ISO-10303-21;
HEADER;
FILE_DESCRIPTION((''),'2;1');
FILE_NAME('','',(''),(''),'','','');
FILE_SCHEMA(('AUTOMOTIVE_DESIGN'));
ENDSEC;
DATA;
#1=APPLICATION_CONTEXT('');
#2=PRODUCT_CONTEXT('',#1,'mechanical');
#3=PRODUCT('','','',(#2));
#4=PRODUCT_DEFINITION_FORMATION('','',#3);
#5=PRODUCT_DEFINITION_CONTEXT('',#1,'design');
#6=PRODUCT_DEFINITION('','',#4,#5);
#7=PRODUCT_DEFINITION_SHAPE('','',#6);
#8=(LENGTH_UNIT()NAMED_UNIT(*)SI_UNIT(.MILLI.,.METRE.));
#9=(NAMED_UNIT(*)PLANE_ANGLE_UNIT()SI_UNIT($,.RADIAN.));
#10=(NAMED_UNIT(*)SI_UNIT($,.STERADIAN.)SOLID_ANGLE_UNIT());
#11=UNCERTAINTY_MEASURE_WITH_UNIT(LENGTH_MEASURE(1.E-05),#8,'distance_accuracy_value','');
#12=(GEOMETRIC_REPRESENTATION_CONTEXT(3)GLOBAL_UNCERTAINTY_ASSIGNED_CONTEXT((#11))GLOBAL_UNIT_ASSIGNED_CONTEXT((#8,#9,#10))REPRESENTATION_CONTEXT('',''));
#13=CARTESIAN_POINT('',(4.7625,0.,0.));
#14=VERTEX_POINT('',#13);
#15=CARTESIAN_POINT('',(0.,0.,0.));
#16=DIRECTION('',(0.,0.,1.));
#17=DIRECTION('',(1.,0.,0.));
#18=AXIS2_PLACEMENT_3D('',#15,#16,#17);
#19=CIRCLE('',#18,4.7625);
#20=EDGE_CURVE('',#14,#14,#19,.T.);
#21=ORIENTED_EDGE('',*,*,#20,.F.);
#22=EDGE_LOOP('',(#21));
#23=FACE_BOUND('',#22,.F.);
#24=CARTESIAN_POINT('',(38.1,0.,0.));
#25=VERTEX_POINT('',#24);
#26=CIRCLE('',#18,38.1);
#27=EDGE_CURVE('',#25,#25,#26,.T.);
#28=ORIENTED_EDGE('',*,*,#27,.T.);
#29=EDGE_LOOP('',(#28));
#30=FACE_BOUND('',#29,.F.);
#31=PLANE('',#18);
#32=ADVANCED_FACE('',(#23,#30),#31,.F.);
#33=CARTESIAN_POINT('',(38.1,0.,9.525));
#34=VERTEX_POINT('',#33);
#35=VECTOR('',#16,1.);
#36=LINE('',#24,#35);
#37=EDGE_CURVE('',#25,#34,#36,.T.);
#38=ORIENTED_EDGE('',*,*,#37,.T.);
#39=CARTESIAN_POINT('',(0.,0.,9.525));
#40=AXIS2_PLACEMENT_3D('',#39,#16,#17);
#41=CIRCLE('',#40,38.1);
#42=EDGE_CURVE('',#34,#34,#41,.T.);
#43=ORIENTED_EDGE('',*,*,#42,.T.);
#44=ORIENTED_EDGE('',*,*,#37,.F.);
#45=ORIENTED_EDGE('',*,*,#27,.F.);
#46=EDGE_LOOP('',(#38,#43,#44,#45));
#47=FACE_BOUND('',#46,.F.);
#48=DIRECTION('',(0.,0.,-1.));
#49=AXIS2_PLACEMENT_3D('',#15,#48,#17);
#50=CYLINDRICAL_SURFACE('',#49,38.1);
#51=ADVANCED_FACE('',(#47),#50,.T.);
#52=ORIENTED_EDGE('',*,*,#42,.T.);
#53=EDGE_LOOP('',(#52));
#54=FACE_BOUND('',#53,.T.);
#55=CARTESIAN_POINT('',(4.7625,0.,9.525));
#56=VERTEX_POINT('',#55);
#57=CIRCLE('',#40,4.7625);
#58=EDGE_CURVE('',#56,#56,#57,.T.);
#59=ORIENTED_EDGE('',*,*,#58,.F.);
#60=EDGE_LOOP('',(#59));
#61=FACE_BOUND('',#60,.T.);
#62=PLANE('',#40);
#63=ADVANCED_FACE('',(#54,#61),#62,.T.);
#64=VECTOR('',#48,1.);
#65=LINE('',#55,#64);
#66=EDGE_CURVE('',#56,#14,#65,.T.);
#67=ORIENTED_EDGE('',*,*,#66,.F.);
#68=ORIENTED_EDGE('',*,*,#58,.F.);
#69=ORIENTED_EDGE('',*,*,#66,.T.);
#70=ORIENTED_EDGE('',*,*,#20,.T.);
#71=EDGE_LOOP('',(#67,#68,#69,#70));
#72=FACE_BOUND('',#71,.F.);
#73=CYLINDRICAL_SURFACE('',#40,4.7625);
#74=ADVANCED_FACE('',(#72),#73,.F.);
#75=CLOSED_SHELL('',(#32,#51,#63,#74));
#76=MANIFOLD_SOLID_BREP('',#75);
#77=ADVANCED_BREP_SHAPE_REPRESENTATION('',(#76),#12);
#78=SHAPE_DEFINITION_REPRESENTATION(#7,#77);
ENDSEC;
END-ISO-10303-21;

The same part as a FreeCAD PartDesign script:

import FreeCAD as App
import Part
import Sketcher

V = App.Vector
Q = App.Units.Quantity

doc = App.newDocument("Part")
body = doc.addObject("PartDesign::Body", "Body")

sketch1 = doc.addObject("Sketcher::SketchObject", "Sketch")
body.addObject(sketch1)
sketch1.AttachmentSupport = (doc.XY_Plane, [""])
sketch1.MapMode = "FlatFace"
sketch1.addGeometry(Part.Circle(V(0, 0, 0), V(0, 0, 1), 38), False)
sketch1.addConstraint(Sketcher.Constraint("Coincident", 0, 3, -1, 1))
sketch1.addConstraint(Sketcher.Constraint("Diameter", 0, Q("3 in")))
pad1 = doc.addObject("PartDesign::Pad", "Pad")
body.addObject(pad1)
pad1.Profile = sketch1
pad1.Length = Q("0.375 in")

sketch2 = doc.addObject("Sketcher::SketchObject", "Sketch001")
body.addObject(sketch2)
sketch2.AttachmentSupport = (doc.XY_Plane, [""])
sketch2.MapMode = "FlatFace"
sketch2.AttachmentOffset = App.Placement(V(0, 0, 0.375 * 25.4), App.Rotation())
sketch2.addGeometry(Part.Circle(V(0, 0, 0), V(0, 0, 1), 4.8), False)
sketch2.addConstraint(Sketcher.Constraint("Coincident", 0, 3, -1, 1))
sketch2.addConstraint(Sketcher.Constraint("Diameter", 0, Q("0.375 in")))
pocket1 = doc.addObject("PartDesign::Pocket", "Pocket")
body.addObject(pocket1)
pocket1.Profile = sketch2
pocket1.Length = Q("0.375 in")

doc.recompute()
